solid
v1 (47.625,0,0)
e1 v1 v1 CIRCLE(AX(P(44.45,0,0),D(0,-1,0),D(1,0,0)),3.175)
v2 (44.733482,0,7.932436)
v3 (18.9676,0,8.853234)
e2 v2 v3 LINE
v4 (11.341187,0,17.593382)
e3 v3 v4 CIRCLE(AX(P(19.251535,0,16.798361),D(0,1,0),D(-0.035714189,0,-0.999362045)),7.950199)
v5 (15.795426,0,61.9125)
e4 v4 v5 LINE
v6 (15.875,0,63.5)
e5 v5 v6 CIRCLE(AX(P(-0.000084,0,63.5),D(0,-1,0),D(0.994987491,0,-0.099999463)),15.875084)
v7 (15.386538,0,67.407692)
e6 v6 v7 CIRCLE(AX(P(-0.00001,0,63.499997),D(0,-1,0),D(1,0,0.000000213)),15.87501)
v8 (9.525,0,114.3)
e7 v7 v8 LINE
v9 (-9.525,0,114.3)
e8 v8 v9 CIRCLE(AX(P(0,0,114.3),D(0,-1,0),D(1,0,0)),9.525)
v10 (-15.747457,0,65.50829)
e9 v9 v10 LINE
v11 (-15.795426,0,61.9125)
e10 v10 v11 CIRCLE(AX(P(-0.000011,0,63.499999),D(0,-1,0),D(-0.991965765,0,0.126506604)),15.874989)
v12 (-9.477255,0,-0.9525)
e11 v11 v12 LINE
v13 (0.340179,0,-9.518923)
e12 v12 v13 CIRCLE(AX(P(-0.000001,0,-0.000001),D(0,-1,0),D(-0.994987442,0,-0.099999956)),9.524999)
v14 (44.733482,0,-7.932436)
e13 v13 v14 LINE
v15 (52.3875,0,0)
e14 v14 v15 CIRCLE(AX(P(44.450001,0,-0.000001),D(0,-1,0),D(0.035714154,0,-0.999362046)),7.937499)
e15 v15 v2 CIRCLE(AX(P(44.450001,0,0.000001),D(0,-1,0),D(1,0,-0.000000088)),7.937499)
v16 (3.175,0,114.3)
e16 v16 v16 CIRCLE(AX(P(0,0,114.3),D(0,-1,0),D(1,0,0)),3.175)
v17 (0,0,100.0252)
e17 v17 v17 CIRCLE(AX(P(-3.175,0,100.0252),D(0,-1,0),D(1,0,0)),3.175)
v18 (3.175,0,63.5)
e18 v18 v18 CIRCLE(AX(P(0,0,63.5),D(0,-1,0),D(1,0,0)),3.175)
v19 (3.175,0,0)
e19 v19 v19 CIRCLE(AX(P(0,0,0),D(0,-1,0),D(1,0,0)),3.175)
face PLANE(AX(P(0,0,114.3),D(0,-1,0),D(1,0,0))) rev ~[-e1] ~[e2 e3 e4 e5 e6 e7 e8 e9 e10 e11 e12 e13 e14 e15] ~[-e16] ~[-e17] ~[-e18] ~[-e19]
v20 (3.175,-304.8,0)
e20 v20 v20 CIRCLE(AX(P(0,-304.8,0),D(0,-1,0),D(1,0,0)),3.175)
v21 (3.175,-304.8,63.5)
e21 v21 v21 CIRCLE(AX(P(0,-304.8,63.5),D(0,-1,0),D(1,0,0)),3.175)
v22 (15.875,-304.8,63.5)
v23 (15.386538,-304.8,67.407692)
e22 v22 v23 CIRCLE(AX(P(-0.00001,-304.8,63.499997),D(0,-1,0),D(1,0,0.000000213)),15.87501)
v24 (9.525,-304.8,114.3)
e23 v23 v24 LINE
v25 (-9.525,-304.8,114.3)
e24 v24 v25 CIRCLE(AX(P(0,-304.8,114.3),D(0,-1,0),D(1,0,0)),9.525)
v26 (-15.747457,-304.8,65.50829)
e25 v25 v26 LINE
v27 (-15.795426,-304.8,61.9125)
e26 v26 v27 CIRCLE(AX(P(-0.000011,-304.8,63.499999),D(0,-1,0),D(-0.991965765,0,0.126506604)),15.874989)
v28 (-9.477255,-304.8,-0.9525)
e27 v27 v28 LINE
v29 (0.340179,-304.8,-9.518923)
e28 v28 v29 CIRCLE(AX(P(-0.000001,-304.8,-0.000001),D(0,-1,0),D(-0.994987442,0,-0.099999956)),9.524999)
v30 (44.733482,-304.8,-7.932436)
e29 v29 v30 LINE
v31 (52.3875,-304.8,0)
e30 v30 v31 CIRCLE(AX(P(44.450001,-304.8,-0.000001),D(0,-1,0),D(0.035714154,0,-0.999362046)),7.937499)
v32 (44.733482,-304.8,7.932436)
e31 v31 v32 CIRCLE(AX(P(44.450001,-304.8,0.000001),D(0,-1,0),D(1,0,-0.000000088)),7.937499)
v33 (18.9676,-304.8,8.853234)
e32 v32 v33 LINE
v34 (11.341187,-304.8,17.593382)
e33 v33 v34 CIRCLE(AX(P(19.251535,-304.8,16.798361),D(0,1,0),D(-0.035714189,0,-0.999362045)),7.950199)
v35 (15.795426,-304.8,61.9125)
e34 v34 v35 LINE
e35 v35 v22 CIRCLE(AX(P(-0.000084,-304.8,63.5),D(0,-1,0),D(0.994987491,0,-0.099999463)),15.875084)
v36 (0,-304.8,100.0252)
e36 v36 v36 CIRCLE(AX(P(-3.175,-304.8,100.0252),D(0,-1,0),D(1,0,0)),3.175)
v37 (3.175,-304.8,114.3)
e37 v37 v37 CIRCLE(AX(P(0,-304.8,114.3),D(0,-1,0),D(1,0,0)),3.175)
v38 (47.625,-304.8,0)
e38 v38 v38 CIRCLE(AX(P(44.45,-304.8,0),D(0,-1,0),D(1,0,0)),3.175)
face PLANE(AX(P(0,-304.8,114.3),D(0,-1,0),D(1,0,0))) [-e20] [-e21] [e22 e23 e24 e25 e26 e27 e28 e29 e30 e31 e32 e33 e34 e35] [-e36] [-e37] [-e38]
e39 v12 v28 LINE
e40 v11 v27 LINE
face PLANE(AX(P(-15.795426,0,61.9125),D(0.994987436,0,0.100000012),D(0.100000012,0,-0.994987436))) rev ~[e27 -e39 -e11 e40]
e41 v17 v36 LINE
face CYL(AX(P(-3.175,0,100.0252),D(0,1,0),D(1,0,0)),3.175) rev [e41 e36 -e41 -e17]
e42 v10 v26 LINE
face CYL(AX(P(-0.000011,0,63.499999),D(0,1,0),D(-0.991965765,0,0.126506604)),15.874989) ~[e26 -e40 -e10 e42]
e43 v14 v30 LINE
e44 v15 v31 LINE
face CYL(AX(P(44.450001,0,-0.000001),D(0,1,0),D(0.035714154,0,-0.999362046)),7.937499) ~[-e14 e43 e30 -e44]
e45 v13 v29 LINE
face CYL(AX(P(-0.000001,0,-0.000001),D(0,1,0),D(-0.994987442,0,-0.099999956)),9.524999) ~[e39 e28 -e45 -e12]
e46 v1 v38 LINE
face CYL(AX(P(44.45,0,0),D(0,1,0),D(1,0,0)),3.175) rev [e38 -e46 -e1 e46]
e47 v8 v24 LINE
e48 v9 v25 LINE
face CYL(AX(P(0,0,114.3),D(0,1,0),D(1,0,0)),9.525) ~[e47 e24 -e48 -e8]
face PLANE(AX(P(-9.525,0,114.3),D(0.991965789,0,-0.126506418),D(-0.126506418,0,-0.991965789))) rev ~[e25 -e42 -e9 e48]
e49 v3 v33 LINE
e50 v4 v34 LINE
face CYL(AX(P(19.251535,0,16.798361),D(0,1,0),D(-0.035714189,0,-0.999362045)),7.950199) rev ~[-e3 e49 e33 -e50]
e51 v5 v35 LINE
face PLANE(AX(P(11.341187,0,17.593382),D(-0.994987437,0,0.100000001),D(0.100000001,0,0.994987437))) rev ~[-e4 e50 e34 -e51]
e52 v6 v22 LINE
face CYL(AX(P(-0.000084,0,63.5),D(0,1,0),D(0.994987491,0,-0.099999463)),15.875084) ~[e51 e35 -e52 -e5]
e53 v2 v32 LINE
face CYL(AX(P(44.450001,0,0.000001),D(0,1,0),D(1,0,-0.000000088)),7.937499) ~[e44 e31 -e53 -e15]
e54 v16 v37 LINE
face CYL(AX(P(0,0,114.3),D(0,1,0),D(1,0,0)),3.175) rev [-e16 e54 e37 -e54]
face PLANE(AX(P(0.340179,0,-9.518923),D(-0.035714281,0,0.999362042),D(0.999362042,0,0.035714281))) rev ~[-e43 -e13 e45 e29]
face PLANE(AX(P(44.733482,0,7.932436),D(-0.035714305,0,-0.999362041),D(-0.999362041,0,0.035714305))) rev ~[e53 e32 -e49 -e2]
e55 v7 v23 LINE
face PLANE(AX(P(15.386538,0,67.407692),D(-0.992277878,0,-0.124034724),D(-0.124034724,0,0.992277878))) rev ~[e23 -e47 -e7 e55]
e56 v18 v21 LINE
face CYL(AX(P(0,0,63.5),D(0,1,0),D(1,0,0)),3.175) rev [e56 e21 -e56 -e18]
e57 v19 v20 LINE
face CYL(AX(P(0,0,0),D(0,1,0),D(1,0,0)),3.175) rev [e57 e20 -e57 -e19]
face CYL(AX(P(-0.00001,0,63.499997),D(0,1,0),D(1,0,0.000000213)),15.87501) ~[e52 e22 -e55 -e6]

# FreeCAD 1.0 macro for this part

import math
import FreeCAD as App
import Part
import Sketcher
from FreeCAD import Vector
Q = App.Units.Quantity

doc = App.newDocument("Part")
body = doc.addObject("PartDesign::Body", "Body")

sketch1 = body.newObject("Sketcher::SketchObject", "Sketch")
sketch1.AttachmentSupport = (doc.getObject("XZ_Plane"), [""])
sketch1.MapMode = "FlatFace"
sketch1.addGeometry([
    Part.ArcOfCircle(Part.Circle(Vector(0, 114.3, 0), Vector(0, 0, 1), 9.525), math.radians(0), math.radians(180)),
    Part.LineSegment(Vector(-9.525, 114.3, 0), Vector(-15.747457, 65.50829, 0)),
    Part.ArcOfCircle(Part.Circle(Vector(-0.000011, 63.499999, 0), Vector(0, 0, 1), 15.874989), math.radians(172.732231), math.radians(185.739171)),
    Part.LineSegment(Vector(-15.795426, 61.9125, 0), Vector(-9.477255, -0.9525, 0)),
    Part.ArcOfCircle(Part.Circle(Vector(-0.000001, -0.000001, 0), Vector(0, 0, 1), 9.524999), math.radians(-174.260832), math.radians(-87.953281)),
    Part.LineSegment(Vector(0.340179, -9.518923, 0), Vector(44.733482, -7.932436, 0)),
    Part.ArcOfCircle(Part.Circle(Vector(44.450001, -0.000001, 0), Vector(0, 0, 1), 7.937499), math.radians(-87.953294), math.radians(0.000005)),
    Part.ArcOfCircle(Part.Circle(Vector(44.450001, 0.000001, 0), Vector(0, 0, 1), 7.937499), math.radians(-0.000005), math.radians(87.953294)),
    Part.LineSegment(Vector(44.733482, 7.932436, 0), Vector(18.9676, 8.853234, 0)),
    Part.ArcOfCircle(Part.Circle(Vector(19.251535, 16.798361, 0), Vector(0, 0, 1), 7.950199), math.radians(174.260822), math.radians(267.953292)),
    Part.LineSegment(Vector(11.341187, 17.593382, 0), Vector(15.795426, 61.9125, 0)),
    Part.ArcOfCircle(Part.Circle(Vector(-0.000084, 63.5, 0), Vector(0, 0, 1), 15.875084), math.radians(-5.73914), math.radians(0)),
    Part.ArcOfCircle(Part.Circle(Vector(-0.00001, 63.499997, 0), Vector(0, 0, 1), 15.87501), math.radians(0.000012), math.radians(14.250035)),
    Part.LineSegment(Vector(15.386538, 67.407692, 0), Vector(9.525, 114.3, 0)),
    Part.Circle(Vector(0, 0, 0), Vector(0, 0, 1), 3.175),
    Part.Circle(Vector(44.45, 0, 0), Vector(0, 0, 1), 3.175),
    Part.Circle(Vector(0, 63.5, 0), Vector(0, 0, 1), 3.175),
    Part.Circle(Vector(-3.175, 100.0252, 0), Vector(0, 0, 1), 3.175),
    Part.Circle(Vector(0, 114.3, 0), Vector(0, 0, 1), 3.175),
], False)
sketch1.addConstraint([
    Sketcher.Constraint("Coincident", 0, 2, 1, 1),
    Sketcher.Constraint("Coincident", 1, 2, 2, 1),
    Sketcher.Constraint("Coincident", 2, 2, 3, 1),
    Sketcher.Constraint("Coincident", 3, 2, 4, 1),
    Sketcher.Constraint("Coincident", 4, 2, 5, 1),
    Sketcher.Constraint("Coincident", 5, 2, 6, 1),
    Sketcher.Constraint("Coincident", 6, 2, 7, 1),
    Sketcher.Constraint("Coincident", 7, 2, 8, 1),
    Sketcher.Constraint("Coincident", 8, 2, 9, 2),
    Sketcher.Constraint("Coincident", 9, 1, 10, 1),
    Sketcher.Constraint("Coincident", 10, 2, 11, 1),
    Sketcher.Constraint("Coincident", 11, 2, 12, 1),
    Sketcher.Constraint("Coincident", 12, 2, 13, 1),
    Sketcher.Constraint("Coincident", 13, 2, 0, 1),
    Sketcher.Constraint("Coincident", 4, 3, -1, 1),
    Sketcher.Constraint("Coincident", 14, 3, -1, 1),
    Sketcher.Constraint("Coincident", 7, 3, 6, 3),
    Sketcher.Constraint("Coincident", 12, 3, 2, 3),
    Sketcher.Constraint("Coincident", 15, 3, 6, 3),
    Sketcher.Constraint("Coincident", 18, 3, 0, 3),
    Sketcher.Constraint("PointOnObject", 0, 3, -2),
    Sketcher.Constraint("PointOnObject", 6, 3, -1),
    Sketcher.Constraint("PointOnObject", 16, 3, -2),
    Sketcher.Constraint("PointOnObject", 6, 2, -1),
    Sketcher.Constraint("Diameter", 14, Q("0.25 in")),
    Sketcher.Constraint("Diameter", 15, Q("0.25 in")),
    Sketcher.Constraint("Diameter", 16, Q("0.25 in")),
    Sketcher.Constraint("Diameter", 17, Q("0.25 in")),
    Sketcher.Constraint("Diameter", 18, Q("0.25 in")),
    Sketcher.Constraint("Radius", 0, Q("0.375 in")),
    Sketcher.Constraint("Radius", 4, Q("0.375 in")),
    Sketcher.Constraint("Radius", 6, Q("0.3125 in")),
    Sketcher.Constraint("Radius", 9, Q("0.313 in")),
    Sketcher.Constraint("DistanceY", 2, 3, 0, 3, Q("2 in")),
    Sketcher.Constraint("DistanceY", 11, 3, 0, 3, Q("2 in")),
    Sketcher.Constraint("DistanceY", 16, 3, 0, 3, Q("2 in")),
    Sketcher.Constraint("DistanceY", 11, 3, 0, 2, Q("2 in")),
    Sketcher.Constraint("DistanceY", -1, 1, 0, 3, Q("4.5 in")),
    Sketcher.Constraint("DistanceY", -1, 1, 11, 2, Q("2.5 in")),
    Sketcher.Constraint("DistanceY", -1, 1, 13, 2, Q("4.5 in")),
    Sketcher.Constraint("DistanceX", 17, 3, 13, 2, Q("0.5 in")),
    Sketcher.Constraint("DistanceX", -1, 1, 6, 3, Q("1.75 in")),
    Sketcher.Constraint("DistanceY", -1, 1, 17, 3, Q("3.938 in")),
    Sketcher.Constraint("DistanceY", -1, 1, 2, 2, Q("2.4375 in")),
    Sketcher.Constraint("DistanceY", -1, 1, 10, 2, Q("2.4375 in")),
    Sketcher.Constraint("DistanceX", -1, 1, 11, 2, Q("0.625 in")),
    Sketcher.Constraint("Radius", 2, Q("15.874989 mm")),
    Sketcher.Constraint("Radius", 12, Q("15.87501 mm")),
    Sketcher.Constraint("DistanceY", 3, 2, -1, 1, Q("0.0375 in")),
    Sketcher.Constraint("Radius", 11, Q("15.875084 mm")),
    Sketcher.Constraint("DistanceY", 9, 3, 9, 1, Q("0.0313 in")),
    Sketcher.Constraint("DistanceX", -1, 1, 8, 2, Q("18.9676 mm")),
    Sketcher.Constraint("Distance", 8, Q("25.78233 mm")),
    Sketcher.Constraint("Distance", 10, Q("44.54239 mm")),
    Sketcher.Constraint("DistanceY", -1, 1, 9, 3, Q("16.798361 mm")),
    Sketcher.Constraint("DistanceY", -1, 1, 1, 2, Q("65.50829 mm")),
    Sketcher.Constraint("DistanceX", -1, 1, 4, 2, Q("0.340179 mm")),
    Sketcher.Constraint("DistanceY", -1, 1, 12, 2, Q("67.407692 mm")),
    Sketcher.Constraint("DistanceX", 6, 3, 5, 2, Q("0.283481 mm")),
])
pad1 = body.newObject("PartDesign::Pad", "Pad")
pad1.Profile = sketch1
pad1.Length = Q("12 in")

doc.recompute()
